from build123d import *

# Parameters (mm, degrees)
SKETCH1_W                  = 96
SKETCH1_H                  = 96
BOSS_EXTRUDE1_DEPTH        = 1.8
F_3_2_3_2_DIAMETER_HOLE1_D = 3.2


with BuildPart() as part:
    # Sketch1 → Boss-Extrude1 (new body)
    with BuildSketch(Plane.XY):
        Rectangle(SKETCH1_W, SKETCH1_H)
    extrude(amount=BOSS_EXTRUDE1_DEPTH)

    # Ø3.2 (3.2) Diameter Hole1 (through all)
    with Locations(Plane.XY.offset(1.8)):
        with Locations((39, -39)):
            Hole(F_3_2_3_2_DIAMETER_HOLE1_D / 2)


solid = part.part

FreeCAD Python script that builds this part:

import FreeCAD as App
import Part
import Sketcher

V = App.Vector
Q = App.Units.Quantity

doc = App.newDocument("Part")
params = doc.addObject("Spreadsheet::Sheet", "Params")
for row, (alias, value) in enumerate([
    ("sketch1_width", "96 mm"),
    ("pad1_length", "1.8 mm"),
    ("sketch2_diameter", "3.2 mm"),
    ("hole_diameter", "3.2 mm"),
], start=1):
    params.set(f"A{row}", alias)
    params.set(f"B{row}", "=" + value)
    params.setAlias(f"B{row}", alias)

body = doc.addObject("PartDesign::Body", "Body")

# Sketch on XY plane
sketch1 = body.newObject("Sketcher::SketchObject", "Sketch")
sketch1.AttachmentSupport = (doc.getObject("XY_Plane"), [""])
sketch1.MapMode = "FlatFace"
sketch1.addGeometry(Part.LineSegment(V(-48, 48, 0), V(-48, -48, 0)), False)
sketch1.addGeometry(Part.LineSegment(V(-48, -48, 0), V(48, -48, 0)), False)
sketch1.addGeometry(Part.LineSegment(V(48, -48, 0), V(48, 48, 0)), False)
sketch1.addGeometry(Part.LineSegment(V(48, 48, 0), V(-48, 48, 0)), False)
sketch1.addConstraint(Sketcher.Constraint("Coincident", 0, 2, 1, 1))
sketch1.addConstraint(Sketcher.Constraint("Coincident", 1, 2, 2, 1))
sketch1.addConstraint(Sketcher.Constraint("Coincident", 2, 2, 3, 1))
sketch1.addConstraint(Sketcher.Constraint("Coincident", 3, 2, 0, 1))
sketch1.addConstraint(Sketcher.Constraint("Vertical", 0))
sketch1.addConstraint(Sketcher.Constraint("Horizontal", 1))
sketch1.addConstraint(Sketcher.Constraint("Vertical", 2))
sketch1.addConstraint(Sketcher.Constraint("Horizontal", 3))
sketch1.addConstraint(Sketcher.Constraint("Symmetric", 0, 2, 2, 2, -1, 1))
sketch1.addConstraint(Sketcher.Constraint("Equal", 3, 0))
sketch1.addConstraint(Sketcher.Constraint("DistanceX", 1, 1, 1, 2, Q("96 mm")))
sketch1.setExpression("Constraints[10]", "Params.sketch1_width")
pad1 = body.newObject("PartDesign::Pad", "Pad")
pad1.Profile = sketch1
pad1.setExpression("Length", "Params.pad1_length")

# Sketch on XY plane
sketch2 = body.newObject("Sketcher::SketchObject", "Sketch001")
sketch2.AttachmentSupport = (doc.getObject("XY_Plane"), [""])
sketch2.MapMode = "FlatFace"
sketch2.AttachmentOffset = App.Placement(V(0, 0, 1.8), App.Rotation())
sketch2.addGeometry(Part.Circle(V(39, -39, 0), V(0, 0, 1), 1.6), False)
sketch2.addConstraint(Sketcher.Constraint("Diameter", 0, Q("3.2 mm")))
sketch2.addConstraint(Sketcher.Constraint("DistanceX", -1, 1, 0, 3, Q("39 mm")))
sketch2.addConstraint(Sketcher.Constraint("DistanceY", 0, 3, -1, 1, Q("39 mm")))
sketch2.setExpression("Constraints[0]", "Params.sketch2_diameter")
doc.recompute()
hole = body.newObject("PartDesign::Hole", "Hole")
hole.Profile = sketch2
hole.ThreadType = "None"
hole.setExpression("Diameter", "Params.hole_diameter")
hole.DepthType = "ThroughAll"

doc.recompute()
